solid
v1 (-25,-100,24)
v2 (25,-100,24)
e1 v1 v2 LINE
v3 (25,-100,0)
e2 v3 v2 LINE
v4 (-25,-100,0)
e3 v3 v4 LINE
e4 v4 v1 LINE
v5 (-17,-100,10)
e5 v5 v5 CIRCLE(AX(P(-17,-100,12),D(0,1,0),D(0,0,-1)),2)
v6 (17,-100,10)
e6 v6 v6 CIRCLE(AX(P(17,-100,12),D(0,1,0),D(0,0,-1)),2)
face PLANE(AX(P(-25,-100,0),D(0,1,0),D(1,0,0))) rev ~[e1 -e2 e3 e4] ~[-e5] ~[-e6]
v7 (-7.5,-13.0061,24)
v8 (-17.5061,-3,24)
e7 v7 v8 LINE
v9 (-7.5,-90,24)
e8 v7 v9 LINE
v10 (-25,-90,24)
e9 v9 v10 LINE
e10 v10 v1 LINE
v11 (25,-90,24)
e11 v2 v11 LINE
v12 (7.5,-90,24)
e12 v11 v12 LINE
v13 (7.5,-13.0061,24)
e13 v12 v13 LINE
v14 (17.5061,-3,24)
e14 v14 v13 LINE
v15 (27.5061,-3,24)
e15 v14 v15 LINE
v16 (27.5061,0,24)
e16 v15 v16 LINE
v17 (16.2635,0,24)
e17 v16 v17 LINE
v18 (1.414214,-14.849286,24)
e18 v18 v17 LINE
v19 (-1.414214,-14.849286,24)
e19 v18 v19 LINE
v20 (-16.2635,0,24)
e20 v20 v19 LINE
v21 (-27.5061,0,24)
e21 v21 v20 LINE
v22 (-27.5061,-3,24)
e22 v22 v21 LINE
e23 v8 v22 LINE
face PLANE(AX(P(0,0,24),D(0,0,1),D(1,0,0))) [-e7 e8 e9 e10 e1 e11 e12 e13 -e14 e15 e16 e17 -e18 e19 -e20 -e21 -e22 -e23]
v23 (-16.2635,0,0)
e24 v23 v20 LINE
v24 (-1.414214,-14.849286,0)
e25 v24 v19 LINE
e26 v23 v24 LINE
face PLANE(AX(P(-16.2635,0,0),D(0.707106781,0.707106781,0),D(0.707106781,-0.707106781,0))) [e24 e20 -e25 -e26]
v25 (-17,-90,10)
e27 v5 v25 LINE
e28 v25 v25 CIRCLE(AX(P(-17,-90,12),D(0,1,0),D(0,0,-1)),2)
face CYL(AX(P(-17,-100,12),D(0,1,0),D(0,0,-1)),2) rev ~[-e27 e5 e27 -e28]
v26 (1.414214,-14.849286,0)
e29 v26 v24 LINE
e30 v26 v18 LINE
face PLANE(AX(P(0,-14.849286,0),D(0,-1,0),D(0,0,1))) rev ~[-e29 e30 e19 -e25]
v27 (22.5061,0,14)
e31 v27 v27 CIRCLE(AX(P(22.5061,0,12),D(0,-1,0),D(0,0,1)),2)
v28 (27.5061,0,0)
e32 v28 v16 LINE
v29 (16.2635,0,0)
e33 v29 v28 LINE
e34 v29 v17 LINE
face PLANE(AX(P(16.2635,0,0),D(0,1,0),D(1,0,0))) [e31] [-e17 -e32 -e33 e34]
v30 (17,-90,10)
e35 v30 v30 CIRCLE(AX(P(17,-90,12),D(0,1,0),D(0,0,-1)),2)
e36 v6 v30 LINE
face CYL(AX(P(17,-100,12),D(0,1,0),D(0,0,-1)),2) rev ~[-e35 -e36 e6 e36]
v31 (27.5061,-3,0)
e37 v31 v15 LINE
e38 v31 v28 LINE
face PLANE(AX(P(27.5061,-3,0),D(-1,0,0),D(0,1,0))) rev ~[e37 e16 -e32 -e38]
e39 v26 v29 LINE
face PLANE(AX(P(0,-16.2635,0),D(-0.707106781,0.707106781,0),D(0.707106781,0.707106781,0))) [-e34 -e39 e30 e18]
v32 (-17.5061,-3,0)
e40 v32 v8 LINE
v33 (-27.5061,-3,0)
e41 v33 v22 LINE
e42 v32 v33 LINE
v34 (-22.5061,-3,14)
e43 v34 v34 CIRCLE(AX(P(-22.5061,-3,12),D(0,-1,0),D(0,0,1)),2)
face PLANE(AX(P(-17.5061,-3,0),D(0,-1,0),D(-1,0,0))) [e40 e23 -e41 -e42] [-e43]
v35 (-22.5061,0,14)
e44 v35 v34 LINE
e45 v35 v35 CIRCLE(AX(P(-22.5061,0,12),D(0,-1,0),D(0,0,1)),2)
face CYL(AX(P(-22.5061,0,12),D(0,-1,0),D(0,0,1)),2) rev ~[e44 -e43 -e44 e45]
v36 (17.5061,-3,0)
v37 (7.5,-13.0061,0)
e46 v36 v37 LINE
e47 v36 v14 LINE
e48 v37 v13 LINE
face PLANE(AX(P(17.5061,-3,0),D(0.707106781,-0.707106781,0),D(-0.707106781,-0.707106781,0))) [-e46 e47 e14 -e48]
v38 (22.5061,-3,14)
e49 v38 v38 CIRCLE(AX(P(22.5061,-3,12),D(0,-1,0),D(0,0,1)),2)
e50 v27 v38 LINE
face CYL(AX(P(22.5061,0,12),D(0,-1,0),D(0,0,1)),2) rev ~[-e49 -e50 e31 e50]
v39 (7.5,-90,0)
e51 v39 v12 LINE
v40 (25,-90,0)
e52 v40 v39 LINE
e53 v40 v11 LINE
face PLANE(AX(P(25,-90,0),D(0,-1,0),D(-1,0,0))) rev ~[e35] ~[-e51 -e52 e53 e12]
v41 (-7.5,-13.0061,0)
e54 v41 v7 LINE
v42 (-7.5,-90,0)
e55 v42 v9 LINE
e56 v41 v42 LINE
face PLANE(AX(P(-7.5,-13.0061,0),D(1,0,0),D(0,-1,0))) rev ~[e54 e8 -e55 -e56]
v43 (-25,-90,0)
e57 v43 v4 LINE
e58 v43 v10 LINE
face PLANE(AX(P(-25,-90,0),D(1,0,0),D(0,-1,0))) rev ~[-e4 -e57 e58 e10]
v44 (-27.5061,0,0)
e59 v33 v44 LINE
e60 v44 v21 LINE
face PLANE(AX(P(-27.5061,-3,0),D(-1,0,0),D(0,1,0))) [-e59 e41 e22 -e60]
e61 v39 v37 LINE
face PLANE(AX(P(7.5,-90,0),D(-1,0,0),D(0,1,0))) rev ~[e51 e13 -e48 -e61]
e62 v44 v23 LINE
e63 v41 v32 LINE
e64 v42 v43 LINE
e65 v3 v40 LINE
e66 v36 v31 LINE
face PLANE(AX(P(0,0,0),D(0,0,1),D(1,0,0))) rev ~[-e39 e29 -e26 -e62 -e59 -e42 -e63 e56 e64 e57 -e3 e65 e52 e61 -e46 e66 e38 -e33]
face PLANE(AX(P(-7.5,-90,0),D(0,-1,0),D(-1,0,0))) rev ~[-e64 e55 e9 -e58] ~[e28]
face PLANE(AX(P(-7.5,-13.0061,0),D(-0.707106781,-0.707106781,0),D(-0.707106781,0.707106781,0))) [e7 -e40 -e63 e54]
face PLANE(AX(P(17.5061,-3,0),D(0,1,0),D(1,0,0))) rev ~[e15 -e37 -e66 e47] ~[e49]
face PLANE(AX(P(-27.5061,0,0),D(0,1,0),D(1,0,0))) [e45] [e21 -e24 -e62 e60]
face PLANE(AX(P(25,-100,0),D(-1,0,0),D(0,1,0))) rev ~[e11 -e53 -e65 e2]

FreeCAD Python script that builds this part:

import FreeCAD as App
import Part
import Sketcher
from FreeCAD import Vector
Q = App.Units.Quantity


def edges_at(feature, points):
    """Names of the edges that pass closest to the given points."""
    edges = feature.Shape.Edges
    near = lambda p: min(range(len(edges)), key=lambda i: edges[i].distToShape(Part.Vertex(*p))[0])
    return sorted({f"Edge{near(p) + 1}" for p in points})

doc = App.newDocument("Part")
body = doc.addObject("PartDesign::Body", "Body")

# Sketch on XY plane
sketch1 = doc.addObject("Sketcher::SketchObject", "Sketch")
body.addObject(sketch1)
sketch1.AttachmentSupport = (doc.XY_Plane, [""])
sketch1.MapMode = "FlatFace"
sketch1.addGeometry([
    Part.LineSegment(Vector(-17.5061, -3, 0), Vector(-7.5, -13.0061, 0)),  # 0
    Part.LineSegment(Vector(-7.5, -13.0061, 0), Vector(-7.5, -90, 0)),  # 1
    Part.LineSegment(Vector(-7.5, -90, 0), Vector(-25, -90, 0)),  # 2
    Part.LineSegment(Vector(-25, -90, 0), Vector(-25, -100, 0)),  # 3
    Part.LineSegment(Vector(-25, -100, 0), Vector(25, -100, 0)),  # 4
    Part.LineSegment(Vector(25, -100, 0), Vector(25, -90, 0)),  # 5
    Part.LineSegment(Vector(25, -90, 0), Vector(7.5, -90, 0)),  # 6
    Part.LineSegment(Vector(7.5, -90, 0), Vector(7.5, -13.0061, 0)),  # 7
    Part.LineSegment(Vector(7.5, -13.0061, 0), Vector(17.5061, -3, 0)),  # 8
    Part.LineSegment(Vector(17.5061, -3, 0), Vector(27.5061, -3, 0)),  # 9
    Part.LineSegment(Vector(27.5061, -3, 0), Vector(27.5061, 0, 0)),  # 10
    Part.LineSegment(Vector(27.5061, 0, 0), Vector(16.2635, 0, 0)),  # 11
    Part.LineSegment(Vector(16.2635, 0, 0), Vector(0, -16.2635, 0)),  # 12
    Part.LineSegment(Vector(0, -16.2635, 0), Vector(-16.2635, 0, 0)),  # 13
    Part.LineSegment(Vector(-16.2635, 0, 0), Vector(-27.5061, 0, 0)),  # 14
    Part.LineSegment(Vector(-27.5061, 0, 0), Vector(-27.5061, -3, 0)),  # 15
    Part.LineSegment(Vector(-27.5061, -3, 0), Vector(-17.5061, -3, 0)),  # 16
], False)
sketch1.addConstraint([
    Sketcher.Constraint("Coincident", 0, 2, 1, 1),
    Sketcher.Constraint("Coincident", 1, 2, 2, 1),
    Sketcher.Constraint("Coincident", 2, 2, 3, 1),
    Sketcher.Constraint("Coincident", 3, 2, 4, 1),
    Sketcher.Constraint("Coincident", 4, 2, 5, 1),
    Sketcher.Constraint("Coincident", 5, 2, 6, 1),
    Sketcher.Constraint("Coincident", 6, 2, 7, 1),
    Sketcher.Constraint("Coincident", 7, 2, 8, 1),
    Sketcher.Constraint("Coincident", 8, 2, 9, 1),
    Sketcher.Constraint("Coincident", 9, 2, 10, 1),
    Sketcher.Constraint("Coincident", 10, 2, 11, 1),
    Sketcher.Constraint("Coincident", 11, 2, 12, 1),
    Sketcher.Constraint("Coincident", 12, 2, 13, 1),
    Sketcher.Constraint("Coincident", 13, 2, 14, 1),
    Sketcher.Constraint("Coincident", 14, 2, 15, 1),
    Sketcher.Constraint("Coincident", 15, 2, 16, 1),
    Sketcher.Constraint("Coincident", 16, 2, 0, 1),
    Sketcher.Constraint("Vertical", 1),
    Sketcher.Constraint("Horizontal", 2),
    Sketcher.Constraint("Vertical", 3),
    Sketcher.Constraint("Horizontal", 4),
    Sketcher.Constraint("Vertical", 5),
    Sketcher.Constraint("Horizontal", 6),
    Sketcher.Constraint("Vertical", 7),
    Sketcher.Constraint("Horizontal", 9),
    Sketcher.Constraint("Vertical", 10),
    Sketcher.Constraint("Horizontal", 11),
    Sketcher.Constraint("Horizontal", 14),
    Sketcher.Constraint("Vertical", 15),
    Sketcher.Constraint("Horizontal", 16),
    Sketcher.Constraint("Symmetric", 11, 2, 13, 2, -1, 1),
    Sketcher.Constraint("Symmetric", 2, 2, 5, 2, -2),
    Sketcher.Constraint("Symmetric", 0, 2, 7, 2, -2),
    Sketcher.Constraint("Symmetric", 10, 2, 14, 2, -2),
    Sketcher.Constraint("Symmetric", 8, 2, 16, 2, -2),
    Sketcher.Constraint("PointOnObject", 12, 2, -2),
    Sketcher.Constraint("Perpendicular", 0, 8),
    Sketcher.Constraint("Parallel", 8, 12),
    Sketcher.Constraint("Equal", 16, 3),
    Sketcher.Constraint("DistanceX", 4, 1, 4, 2, Q("50 mm")),
    Sketcher.Constraint("DistanceX", 9, 1, 9, 2, Q("10 mm")),
    Sketcher.Constraint("DistanceY", 10, 1, 10, 2, Q("3 mm")),
    Sketcher.Constraint("Distance", 12, Q("23 mm")),
    Sketcher.Constraint("DistanceY", 3, 2, -1, 1, Q("100 mm")),
    Sketcher.Constraint("DistanceX", 1, 2, 6, 2, Q("15 mm")),
    Sketcher.Constraint("DistanceY", 1, 2, 1, 1, Q("76.994 mm")),
])
pad1 = doc.addObject("PartDesign::Pad", "Pad")
body.addObject(pad1)
pad1.Profile = sketch1
pad1.Length = 24

# Sketch on XZ plane
sketch2 = doc.addObject("Sketcher::SketchObject", "Sketch001")
body.addObject(sketch2)
sketch2.AttachmentSupport = (doc.XZ_Plane, [""])
sketch2.MapMode = "FlatFace"
sketch2.addGeometry([
    Part.Circle(Vector(-22.5061, 12, 0), Vector(0, 0, 1), 2),
    Part.Circle(Vector(22.5061, 12, 0), Vector(0, 0, 1), 2),
], False)
sketch2.addConstraint([
    Sketcher.Constraint("Equal", 0, 1),
    Sketcher.Constraint("Symmetric", 0, 3, 1, 3, -2),
    Sketcher.Constraint("Diameter", 0, Q("4 mm")),
    Sketcher.Constraint("DistanceY", -1, 1, 0, 3, Q("12 mm")),
    Sketcher.Constraint("DistanceX", 0, 3, -1, 1, Q("22.506 mm")),
])
doc.recompute()
hole = doc.addObject("PartDesign::Hole", "Hole")
body.addObject(hole)
hole.Profile = sketch2
hole.ThreadType = "None"
hole.Diameter = 4
hole.DepthType = "Dimension"
hole.Depth = 3
hole.DrillPoint = "Flat"
hole.Reversed = True
doc.recompute()

chamfer = doc.addObject("PartDesign::Chamfer", "Chamfer")
body.addObject(chamfer)
chamfer.Base = (hole, edges_at(hole, [(0, -16.264, 12)]))
chamfer.Size = 2

# Sketch on XZ plane
sketch3 = doc.addObject("Sketcher::SketchObject", "Sketch002")
body.addObject(sketch3)
sketch3.AttachmentSupport = (doc.XZ_Plane, [""])
sketch3.MapMode = "FlatFace"
sketch3.AttachmentOffset = App.Placement(Vector(0, 0, 100), App.Rotation())
sketch3.addGeometry([
    Part.Circle(Vector(-17, 12, 0), Vector(0, 0, 1), 2),
    Part.Circle(Vector(17, 12, 0), Vector(0, 0, 1), 2),
], False)
sketch3.addConstraint([
    Sketcher.Constraint("Equal", 0, 1),
    Sketcher.Constraint("Symmetric", 0, 3, 1, 3, -2),
    Sketcher.Constraint("Diameter", 0, Q("4 mm")),
    Sketcher.Constraint("DistanceX", 0, 3, -1, 1, Q("17 mm")),
    Sketcher.Constraint("DistanceY", -1, 1, 0, 3, Q("12 mm")),
])
doc.recompute()
hole2 = doc.addObject("PartDesign::Hole", "Hole001")
body.addObject(hole2)
hole2.Profile = sketch3
hole2.ThreadType = "None"
hole2.Diameter = 4
hole2.DepthType = "Dimension"
hole2.Depth = 10
hole2.DrillPoint = "Flat"

doc.recompute()
